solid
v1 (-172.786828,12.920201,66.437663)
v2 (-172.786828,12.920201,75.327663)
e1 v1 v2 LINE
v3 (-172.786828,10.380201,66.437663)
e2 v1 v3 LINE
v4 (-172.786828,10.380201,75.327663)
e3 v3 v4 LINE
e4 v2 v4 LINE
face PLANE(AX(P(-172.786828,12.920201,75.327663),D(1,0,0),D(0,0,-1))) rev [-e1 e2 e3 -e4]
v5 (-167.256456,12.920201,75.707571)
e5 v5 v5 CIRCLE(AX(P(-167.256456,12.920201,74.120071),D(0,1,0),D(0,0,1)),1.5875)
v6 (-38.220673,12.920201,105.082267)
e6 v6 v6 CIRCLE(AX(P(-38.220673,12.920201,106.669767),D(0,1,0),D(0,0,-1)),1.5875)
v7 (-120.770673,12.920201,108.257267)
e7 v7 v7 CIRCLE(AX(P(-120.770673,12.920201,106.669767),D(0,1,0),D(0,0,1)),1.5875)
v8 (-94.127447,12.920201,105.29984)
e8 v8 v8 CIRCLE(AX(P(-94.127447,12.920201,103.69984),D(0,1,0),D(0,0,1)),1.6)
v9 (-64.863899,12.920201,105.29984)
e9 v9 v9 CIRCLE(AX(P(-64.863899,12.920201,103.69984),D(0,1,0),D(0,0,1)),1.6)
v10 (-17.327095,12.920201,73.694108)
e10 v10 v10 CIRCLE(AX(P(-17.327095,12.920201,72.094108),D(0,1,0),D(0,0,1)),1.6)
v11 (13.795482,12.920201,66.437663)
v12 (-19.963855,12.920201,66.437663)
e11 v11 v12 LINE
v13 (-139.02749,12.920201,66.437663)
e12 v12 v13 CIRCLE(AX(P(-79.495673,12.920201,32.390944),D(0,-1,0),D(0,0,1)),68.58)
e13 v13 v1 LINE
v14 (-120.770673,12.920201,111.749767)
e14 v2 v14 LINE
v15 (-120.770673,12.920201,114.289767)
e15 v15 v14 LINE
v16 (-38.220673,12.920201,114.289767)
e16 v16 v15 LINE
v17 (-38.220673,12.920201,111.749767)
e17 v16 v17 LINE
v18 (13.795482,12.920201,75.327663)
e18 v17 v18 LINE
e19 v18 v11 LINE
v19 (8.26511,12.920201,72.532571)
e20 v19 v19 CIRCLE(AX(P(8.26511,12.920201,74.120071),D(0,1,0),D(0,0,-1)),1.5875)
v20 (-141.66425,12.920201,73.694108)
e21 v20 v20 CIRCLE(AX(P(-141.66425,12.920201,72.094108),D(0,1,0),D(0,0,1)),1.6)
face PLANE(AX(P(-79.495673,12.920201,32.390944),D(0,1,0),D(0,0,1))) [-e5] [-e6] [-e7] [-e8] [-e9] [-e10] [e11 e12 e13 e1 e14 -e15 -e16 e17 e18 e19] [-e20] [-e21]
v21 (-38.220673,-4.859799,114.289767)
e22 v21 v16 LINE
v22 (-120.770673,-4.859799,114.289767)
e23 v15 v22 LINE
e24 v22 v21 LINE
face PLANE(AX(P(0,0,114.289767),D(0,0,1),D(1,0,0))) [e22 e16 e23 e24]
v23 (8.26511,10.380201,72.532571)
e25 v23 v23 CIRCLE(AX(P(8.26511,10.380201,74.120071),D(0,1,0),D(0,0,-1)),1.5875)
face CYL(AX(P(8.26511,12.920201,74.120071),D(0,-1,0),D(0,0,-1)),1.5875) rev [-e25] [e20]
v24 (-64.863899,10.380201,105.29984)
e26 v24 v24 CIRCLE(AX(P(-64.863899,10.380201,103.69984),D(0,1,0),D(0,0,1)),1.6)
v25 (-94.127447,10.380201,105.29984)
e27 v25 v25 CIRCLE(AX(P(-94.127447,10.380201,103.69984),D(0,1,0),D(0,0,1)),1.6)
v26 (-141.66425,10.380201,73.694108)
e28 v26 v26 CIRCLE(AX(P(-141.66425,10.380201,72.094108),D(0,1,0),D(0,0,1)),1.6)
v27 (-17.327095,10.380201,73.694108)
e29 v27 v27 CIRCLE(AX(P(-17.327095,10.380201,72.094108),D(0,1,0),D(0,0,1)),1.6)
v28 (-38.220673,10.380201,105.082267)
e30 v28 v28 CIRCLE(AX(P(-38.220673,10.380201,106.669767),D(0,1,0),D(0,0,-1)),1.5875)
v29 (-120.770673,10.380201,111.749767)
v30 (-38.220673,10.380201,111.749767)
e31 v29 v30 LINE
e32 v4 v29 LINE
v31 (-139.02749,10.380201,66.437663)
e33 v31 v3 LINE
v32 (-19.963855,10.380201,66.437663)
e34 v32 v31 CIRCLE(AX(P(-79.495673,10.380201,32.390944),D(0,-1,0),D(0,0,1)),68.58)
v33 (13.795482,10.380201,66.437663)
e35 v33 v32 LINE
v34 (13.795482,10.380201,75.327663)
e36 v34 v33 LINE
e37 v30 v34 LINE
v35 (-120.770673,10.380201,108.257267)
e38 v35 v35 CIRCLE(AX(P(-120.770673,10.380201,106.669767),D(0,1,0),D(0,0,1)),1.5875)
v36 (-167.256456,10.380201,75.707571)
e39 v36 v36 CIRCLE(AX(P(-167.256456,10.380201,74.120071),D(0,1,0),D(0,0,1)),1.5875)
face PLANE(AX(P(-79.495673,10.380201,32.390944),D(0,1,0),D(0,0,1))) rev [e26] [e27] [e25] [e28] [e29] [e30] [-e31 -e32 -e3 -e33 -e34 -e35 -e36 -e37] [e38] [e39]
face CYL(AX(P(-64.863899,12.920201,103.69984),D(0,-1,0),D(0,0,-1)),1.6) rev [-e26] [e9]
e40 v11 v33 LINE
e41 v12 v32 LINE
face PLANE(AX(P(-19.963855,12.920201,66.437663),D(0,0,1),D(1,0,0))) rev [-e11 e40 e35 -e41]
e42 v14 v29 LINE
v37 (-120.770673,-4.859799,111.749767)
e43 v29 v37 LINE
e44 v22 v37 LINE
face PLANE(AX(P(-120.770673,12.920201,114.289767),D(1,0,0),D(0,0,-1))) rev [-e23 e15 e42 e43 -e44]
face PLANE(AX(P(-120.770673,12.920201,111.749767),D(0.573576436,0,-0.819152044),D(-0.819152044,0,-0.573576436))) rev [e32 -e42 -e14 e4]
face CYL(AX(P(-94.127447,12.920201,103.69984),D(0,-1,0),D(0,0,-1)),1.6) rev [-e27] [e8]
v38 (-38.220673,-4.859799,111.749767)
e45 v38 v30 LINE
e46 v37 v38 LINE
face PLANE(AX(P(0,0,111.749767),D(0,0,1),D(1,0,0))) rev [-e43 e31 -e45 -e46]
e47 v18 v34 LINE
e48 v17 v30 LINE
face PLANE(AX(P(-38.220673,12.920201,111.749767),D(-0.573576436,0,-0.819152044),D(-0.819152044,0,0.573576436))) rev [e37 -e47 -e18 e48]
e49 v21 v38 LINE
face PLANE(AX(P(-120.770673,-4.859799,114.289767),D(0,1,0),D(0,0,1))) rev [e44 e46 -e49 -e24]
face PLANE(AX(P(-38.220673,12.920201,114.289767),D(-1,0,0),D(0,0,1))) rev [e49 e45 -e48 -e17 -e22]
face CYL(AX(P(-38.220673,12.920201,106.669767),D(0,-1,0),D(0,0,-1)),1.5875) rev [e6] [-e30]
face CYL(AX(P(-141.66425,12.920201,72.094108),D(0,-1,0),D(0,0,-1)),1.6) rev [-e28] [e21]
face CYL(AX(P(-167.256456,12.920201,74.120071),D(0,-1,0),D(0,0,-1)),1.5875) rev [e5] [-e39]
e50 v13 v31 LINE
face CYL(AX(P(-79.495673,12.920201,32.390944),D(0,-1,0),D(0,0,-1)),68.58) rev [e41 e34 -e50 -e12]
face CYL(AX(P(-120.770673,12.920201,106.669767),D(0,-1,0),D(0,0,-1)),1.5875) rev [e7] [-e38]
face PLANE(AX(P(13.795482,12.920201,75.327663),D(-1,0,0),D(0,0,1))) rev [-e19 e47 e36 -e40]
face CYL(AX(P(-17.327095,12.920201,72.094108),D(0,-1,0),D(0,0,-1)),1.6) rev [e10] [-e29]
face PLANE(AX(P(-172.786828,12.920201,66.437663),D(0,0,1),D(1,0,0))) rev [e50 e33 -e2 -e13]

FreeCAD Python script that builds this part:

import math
import FreeCAD as App
import Part
import Sketcher
from FreeCAD import Vector
Q = App.Units.Quantity

doc = App.newDocument("Part")
body = doc.addObject("PartDesign::Body", "Body")

# Sketch on XZ plane
sketch1 = body.newObject("Sketcher::SketchObject", "Sketch")
sketch1.AttachmentSupport = (doc.getObject("XZ_Plane"), [""])
sketch1.MapMode = "FlatFace"
sketch1.AttachmentOffset = App.Placement(Vector(0, 0, -10.380201), App.Rotation())
sketch1.addGeometry([
    Part.LineSegment(Vector(-120.770673, 111.749767, 0), Vector(-38.220673, 111.749767, 0)),  # 0
    Part.LineSegment(Vector(-38.220673, 111.749767, 0), Vector(13.795482, 75.327663, 0)),  # 1
    Part.LineSegment(Vector(13.795482, 75.327663, 0), Vector(13.795482, 66.437663, 0)),  # 2
    Part.LineSegment(Vector(13.795482, 66.437663, 0), Vector(-19.963855, 66.437663, 0)),  # 3
    Part.ArcOfCircle(Part.Circle(Vector(-79.495673, 32.390944, 0), Vector(0, 0, 1), 68.58), math.radians(29.765582), math.radians(150.234418)),  # 4
    Part.LineSegment(Vector(-139.02749, 66.437663, 0), Vector(-172.786828, 66.437663, 0)),  # 5
    Part.LineSegment(Vector(-172.786828, 66.437663, 0), Vector(-172.786828, 75.327663, 0)),  # 6
    Part.LineSegment(Vector(-172.786828, 75.327663, 0), Vector(-120.770673, 111.749767, 0)),  # 7
    Part.Circle(Vector(-38.220673, 106.669767, 0), Vector(0, 0, 1), 1.5875),  # 8
    Part.Circle(Vector(-64.863899, 103.69984, 0), Vector(0, 0, 1), 1.6),  # 9
    Part.Circle(Vector(-94.127447, 103.69984, 0), Vector(0, 0, 1), 1.6),  # 10
    Part.Circle(Vector(-120.770673, 106.669767, 0), Vector(0, 0, 1), 1.5875),  # 11
    Part.Circle(Vector(8.26511, 74.120071, 0), Vector(0, 0, 1), 1.5875),  # 12
    Part.Circle(Vector(-17.327095, 72.094108, 0), Vector(0, 0, 1), 1.6),  # 13
    Part.Circle(Vector(-141.66425, 72.094108, 0), Vector(0, 0, 1), 1.6),  # 14
    Part.Circle(Vector(-167.256456, 74.120071, 0), Vector(0, 0, 1), 1.5875),  # 15
], False)
sketch1.addConstraint([
    Sketcher.Constraint("Coincident", 0, 2, 1, 1),
    Sketcher.Constraint("Coincident", 1, 2, 2, 1),
    Sketcher.Constraint("Coincident", 2, 2, 3, 1),
    Sketcher.Constraint("Coincident", 3, 2, 4, 1),
    Sketcher.Constraint("Coincident", 4, 2, 5, 1),
    Sketcher.Constraint("Coincident", 5, 2, 6, 1),
    Sketcher.Constraint("Coincident", 6, 2, 7, 1),
    Sketcher.Constraint("Coincident", 7, 2, 0, 1),
    Sketcher.Constraint("Horizontal", 0),
    Sketcher.Constraint("Vertical", 2),
    Sketcher.Constraint("Horizontal", 3),
    Sketcher.Constraint("Horizontal", 5),
    Sketcher.Constraint("Vertical", 6),
    Sketcher.Constraint("Equal", 9, 10),
    Sketcher.Constraint("Equal", 8, 11),
    Sketcher.Constraint("Equal", 11, 12),
    Sketcher.Constraint("Equal", 10, 13),
    Sketcher.Constraint("Equal", 13, 14),
    Sketcher.Constraint("Equal", 12, 15),
    Sketcher.Constraint("Horizontal", 9, 3, 10, 3),
    Sketcher.Constraint("Horizontal", 8, 3, 11, 3),
    Sketcher.Constraint("Horizontal", 13, 3, 14, 3),
    Sketcher.Constraint("Horizontal", 12, 3, 15, 3),
    Sketcher.Constraint("Horizontal", 3, 2, 4, 2),
    Sketcher.Constraint("Horizontal", 1, 2, 6, 2),
    Sketcher.Constraint("Vertical", 8, 3, 0, 2),
    Sketcher.Constraint("Vertical", 11, 3, 7, 2),
    Sketcher.Constraint("Equal", 3, 5),
    Sketcher.Constraint("Equal", 1, 7),
    Sketcher.Constraint("Radius", 4, Q("2.7 in")),
    Sketcher.Constraint("Diameter", 8, Q("0.125 in")),
    Sketcher.Constraint("Angle", 1, Q("-35 deg")),
    Sketcher.Constraint("Distance", 1, Q("2.5 in")),
    Sketcher.Constraint("DistanceX", 0, 1, 0, 2, Q("3.25 in")),
    Sketcher.Constraint("DistanceY", 2, 2, 2, 1, Q("0.35 in")),
    Sketcher.Constraint("DistanceY", 8, 3, 0, 2, Q("0.2 in")),
    Sketcher.Constraint("Diameter", 9, Q("3.2 mm")),
    Sketcher.Constraint("DistanceX", 15, 3, -1, 1, Q("6.5848998 in")),
    Sketcher.Constraint("DistanceX", 9, 3, -1, 1, Q("64.863899 mm")),
    Sketcher.Constraint("DistanceX", 3, 2, 3, 1, Q("33.759337 mm")),
    Sketcher.Constraint("DistanceY", -1, 1, 9, 3, Q("103.69984 mm")),
    Sketcher.Constraint("DistanceX", -1, 1, 12, 3, Q("8.26511 mm")),
    Sketcher.Constraint("DistanceY", -1, 1, 12, 3, Q("74.120071 mm")),
    Sketcher.Constraint("DistanceX", 14, 3, -1, 1, Q("141.66425 mm")),
    Sketcher.Constraint("DistanceX", -1, 1, 1, 2, Q("13.795482 mm")),
    Sketcher.Constraint("DistanceX", 10, 3, 9, 3, Q("29.263548 mm")),
    Sketcher.Constraint("DistanceY", 13, 3, 8, 3, Q("34.575659 mm")),
    Sketcher.Constraint("DistanceY", 13, 3, 9, 3, Q("31.605732 mm")),
    Sketcher.Constraint("DistanceX", 10, 3, 13, 3, Q("76.800352 mm")),
])
pad1 = body.newObject("PartDesign::Pad", "Pad")
pad1.Profile = sketch1
pad1.Length = Q("0.1 in")
pad1.Reversed = True

# Sketch on XY plane
sketch2 = body.newObject("Sketcher::SketchObject", "Sketch001")
sketch2.AttachmentSupport = (doc.getObject("XY_Plane"), [""])
sketch2.MapMode = "FlatFace"
sketch2.AttachmentOffset = App.Placement(Vector(0, 0, 111.749767), App.Rotation())
sketch2.addGeometry([
    Part.LineSegment(Vector(-120.770673, 12.920201, 0), Vector(-120.770673, -4.859799, 0)),
    Part.LineSegment(Vector(-120.770673, -4.859799, 0), Vector(-38.220673, -4.859799, 0)),
    Part.LineSegment(Vector(-38.220673, -4.859799, 0), Vector(-38.220673, 12.920201, 0)),
    Part.LineSegment(Vector(-38.220673, 12.920201, 0), Vector(-120.770673, 12.920201, 0)),
], False)
sketch2.addConstraint([
    Sketcher.Constraint("Coincident", 0, 2, 1, 1),
    Sketcher.Constraint("Coincident", 1, 2, 2, 1),
    Sketcher.Constraint("Coincident", 2, 2, 3, 1),
    Sketcher.Constraint("Coincident", 3, 2, 0, 1),
    Sketcher.Constraint("Vertical", 0),
    Sketcher.Constraint("Horizontal", 1),
    Sketcher.Constraint("Vertical", 2),
    Sketcher.Constraint("Horizontal", 3),
    Sketcher.Constraint("DistanceY", 0, 2, 0, 1, Q("0.7 in")),
    Sketcher.Constraint("DistanceX", 1, 1, 1, 2, Q("3.25 in")),
    Sketcher.Constraint("DistanceY", 0, 2, -1, 1, Q("4.859799 mm")),
    Sketcher.Constraint("DistanceX", 0, 2, -1, 1, Q("120.770673 mm")),
])
pad2 = body.newObject("PartDesign::Pad", "Pad001")
pad2.Profile = sketch2
pad2.Length = Q("0.1 in")

doc.recompute()
